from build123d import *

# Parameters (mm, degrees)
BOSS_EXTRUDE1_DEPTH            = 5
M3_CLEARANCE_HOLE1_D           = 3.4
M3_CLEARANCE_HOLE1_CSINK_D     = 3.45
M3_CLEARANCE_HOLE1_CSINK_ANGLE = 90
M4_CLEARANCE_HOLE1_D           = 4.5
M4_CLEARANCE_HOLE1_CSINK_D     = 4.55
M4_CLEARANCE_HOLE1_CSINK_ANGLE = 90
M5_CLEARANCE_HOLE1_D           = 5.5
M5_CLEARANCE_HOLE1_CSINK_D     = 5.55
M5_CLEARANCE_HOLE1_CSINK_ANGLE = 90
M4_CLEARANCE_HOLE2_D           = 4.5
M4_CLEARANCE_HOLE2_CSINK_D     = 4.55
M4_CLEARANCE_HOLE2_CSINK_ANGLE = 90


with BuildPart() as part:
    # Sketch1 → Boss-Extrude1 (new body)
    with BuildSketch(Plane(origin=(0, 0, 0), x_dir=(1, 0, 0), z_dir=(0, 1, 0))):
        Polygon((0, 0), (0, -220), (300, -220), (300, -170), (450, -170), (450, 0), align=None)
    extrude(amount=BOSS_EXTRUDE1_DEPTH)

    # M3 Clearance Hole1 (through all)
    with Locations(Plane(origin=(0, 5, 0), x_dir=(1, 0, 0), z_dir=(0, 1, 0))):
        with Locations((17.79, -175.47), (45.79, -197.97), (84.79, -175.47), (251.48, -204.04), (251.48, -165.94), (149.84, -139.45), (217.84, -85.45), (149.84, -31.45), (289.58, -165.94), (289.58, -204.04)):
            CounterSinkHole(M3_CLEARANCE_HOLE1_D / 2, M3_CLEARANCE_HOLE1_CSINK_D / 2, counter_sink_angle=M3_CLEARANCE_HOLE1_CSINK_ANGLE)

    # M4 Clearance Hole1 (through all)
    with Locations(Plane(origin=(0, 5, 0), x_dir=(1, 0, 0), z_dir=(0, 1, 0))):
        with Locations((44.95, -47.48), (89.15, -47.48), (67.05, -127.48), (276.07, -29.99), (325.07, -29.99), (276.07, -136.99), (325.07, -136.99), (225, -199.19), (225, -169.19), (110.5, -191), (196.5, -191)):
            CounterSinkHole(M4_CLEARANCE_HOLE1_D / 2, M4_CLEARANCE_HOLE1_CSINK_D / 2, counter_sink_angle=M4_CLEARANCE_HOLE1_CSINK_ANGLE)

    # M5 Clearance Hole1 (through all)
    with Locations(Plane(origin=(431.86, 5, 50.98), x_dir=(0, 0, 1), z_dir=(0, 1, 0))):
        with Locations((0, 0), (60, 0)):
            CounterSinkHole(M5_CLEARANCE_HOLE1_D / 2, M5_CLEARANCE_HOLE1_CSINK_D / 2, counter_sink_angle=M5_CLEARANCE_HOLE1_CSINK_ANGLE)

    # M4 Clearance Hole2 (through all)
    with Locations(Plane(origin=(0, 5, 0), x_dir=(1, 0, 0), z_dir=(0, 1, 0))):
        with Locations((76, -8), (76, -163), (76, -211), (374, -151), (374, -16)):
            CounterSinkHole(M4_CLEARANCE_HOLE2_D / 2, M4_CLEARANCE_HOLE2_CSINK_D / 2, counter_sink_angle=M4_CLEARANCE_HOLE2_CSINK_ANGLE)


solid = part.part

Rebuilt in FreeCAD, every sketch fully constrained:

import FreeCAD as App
import Part
import Sketcher
from FreeCAD import Vector
Q = App.Units.Quantity


def add_polygon(sketch, points):
    """Adds a closed chain of lines whose ends are joined by coincident constraints."""
    first, n = sketch.GeometryCount, len(points)
    for a, b in zip(points, points[1:] + points[:1]):
        sketch.addGeometry(Part.LineSegment(App.Vector(*a, 0), App.Vector(*b, 0)), False)
    for i in range(n):
        sketch.addConstraint(Sketcher.Constraint("Coincident", first + i, 2, first + (i + 1) % n, 1))

doc = App.newDocument("Part")
body = doc.addObject("PartDesign::Body", "Body")

# Sketch on XZ plane
sketch1 = body.newObject("Sketcher::SketchObject", "Sketch")
sketch1.AttachmentSupport = (doc.getObject("XZ_Plane"), [""])
sketch1.MapMode = "FlatFace"
add_polygon(sketch1, [(0, 0), (0, 220), (300, 220), (300, 170), (450, 170), (450, 0)])  # lines 0-5
sketch1.addConstraint([
    Sketcher.Constraint("Vertical", 0),
    Sketcher.Constraint("Horizontal", 1),
    Sketcher.Constraint("Vertical", 2),
    Sketcher.Constraint("Horizontal", 3),
    Sketcher.Constraint("Vertical", 4),
    Sketcher.Constraint("Horizontal", 5),
    Sketcher.Constraint("Coincident", 5, 2, -1, 1),
    Sketcher.Constraint("DistanceX", 1, 1, 1, 2, Q("300 mm")),
    Sketcher.Constraint("DistanceX", 3, 1, 3, 2, Q("150 mm")),
    Sketcher.Constraint("DistanceY", 0, 1, 0, 2, Q("220 mm")),
    Sketcher.Constraint("DistanceY", 2, 2, 2, 1, Q("50 mm")),
])
pad1 = body.newObject("PartDesign::Pad", "Pad")
pad1.Profile = sketch1
pad1.Length = 5
pad1.Reversed = True

# Sketch on XZ plane
sketch2 = body.newObject("Sketcher::SketchObject", "Sketch001")
sketch2.AttachmentSupport = (doc.getObject("XZ_Plane"), [""])
sketch2.MapMode = "FlatFace"
sketch2.AttachmentOffset = App.Placement(Vector(0, 0, -5), App.Rotation())
sketch2.addGeometry([
    Part.Circle(Vector(17.8, 175.5, 0), Vector(0, 0, 1), 1.7),  # 0
    Part.Circle(Vector(45.8, 198, 0), Vector(0, 0, 1), 1.7),  # 1
    Part.Circle(Vector(84.8, 175.5, 0), Vector(0, 0, 1), 1.7),  # 2
    Part.Circle(Vector(251.5, 204, 0), Vector(0, 0, 1), 1.7),  # 3
    Part.Circle(Vector(251.5, 165.9, 0), Vector(0, 0, 1), 1.7),  # 4
    Part.Circle(Vector(149.8, 139.4, 0), Vector(0, 0, 1), 1.7),  # 5
    Part.Circle(Vector(217.8, 85.5, 0), Vector(0, 0, 1), 1.7),  # 6
    Part.Circle(Vector(149.8, 31.4, 0), Vector(0, 0, 1), 1.7),  # 7
    Part.Circle(Vector(289.6, 165.9, 0), Vector(0, 0, 1), 1.7),  # 8
    Part.Circle(Vector(289.6, 204, 0), Vector(0, 0, 1), 1.7),  # 9
], False)
sketch2.addConstraint([
    Sketcher.Constraint("Equal", 0, 1),
    Sketcher.Constraint("Equal", 1, 2),
    Sketcher.Constraint("Equal", 2, 3),
    Sketcher.Constraint("Equal", 3, 4),
    Sketcher.Constraint("Equal", 4, 5),
    Sketcher.Constraint("Equal", 5, 6),
    Sketcher.Constraint("Equal", 6, 7),
    Sketcher.Constraint("Equal", 7, 8),
    Sketcher.Constraint("Equal", 8, 9),
    Sketcher.Constraint("Horizontal", 0, 3, 2, 3),
    Sketcher.Constraint("Horizontal", 4, 3, 8, 3),
    Sketcher.Constraint("Horizontal", 3, 3, 9, 3),
    Sketcher.Constraint("Vertical", 3, 3, 4, 3),
    Sketcher.Constraint("Vertical", 5, 3, 7, 3),
    Sketcher.Constraint("Vertical", 8, 3, 9, 3),
    Sketcher.Constraint("Diameter", 0, Q("3.4 mm")),
    Sketcher.Constraint("DistanceX", 0, 3, 1, 3, Q("28 mm")),
    Sketcher.Constraint("DistanceX", 1, 3, 2, 3, Q("39 mm")),
    Sketcher.Constraint("DistanceX", 5, 3, 6, 3, Q("68 mm")),
    Sketcher.Constraint("DistanceY", 6, 3, 5, 3, Q("54 mm")),
    Sketcher.Constraint("DistanceY", 7, 3, 6, 3, Q("54 mm")),
    Sketcher.Constraint("DistanceY", 0, 3, 1, 3, Q("22.5 mm")),
    Sketcher.Constraint("DistanceY", 4, 3, 3, 3, Q("38.1 mm")),
    Sketcher.Constraint("DistanceX", 4, 3, 8, 3, Q("38.1 mm")),
    Sketcher.Constraint("DistanceX", -1, 1, 0, 3, Q("17.79 mm")),
    Sketcher.Constraint("DistanceY", -1, 1, 0, 3, Q("175.47 mm")),
    Sketcher.Constraint("DistanceX", -1, 1, 3, 3, Q("251.48 mm")),
    Sketcher.Constraint("DistanceY", -1, 1, 3, 3, Q("204.04 mm")),
    Sketcher.Constraint("DistanceX", -1, 1, 5, 3, Q("149.84 mm")),
    Sketcher.Constraint("DistanceY", -1, 1, 5, 3, Q("139.45 mm")),
])
doc.recompute()
hole = body.newObject("PartDesign::Hole", "Hole")
hole.Profile = sketch2
hole.ThreadType = "None"
hole.Diameter = 3.4
hole.DepthType = "ThroughAll"
hole.HoleCutType = "Countersink"
hole.HoleCutDiameter = 3.45
hole.HoleCutCountersinkAngle = 90
hole.Reversed = True

# Sketch on XZ plane
sketch3 = body.newObject("Sketcher::SketchObject", "Sketch002")
sketch3.AttachmentSupport = (doc.getObject("XZ_Plane"), [""])
sketch3.MapMode = "FlatFace"
sketch3.AttachmentOffset = App.Placement(Vector(0, 0, -5), App.Rotation())
sketch3.addGeometry([
    Part.Circle(Vector(45, 47.5, 0), Vector(0, 0, 1), 2.2),  # 0
    Part.Circle(Vector(89.2, 47.5, 0), Vector(0, 0, 1), 2.2),  # 1
    Part.Circle(Vector(67, 127.5, 0), Vector(0, 0, 1), 2.2),  # 2
    Part.Circle(Vector(276.1, 30, 0), Vector(0, 0, 1), 2.2),  # 3
    Part.Circle(Vector(325.1, 30, 0), Vector(0, 0, 1), 2.2),  # 4
    Part.Circle(Vector(276.1, 137, 0), Vector(0, 0, 1), 2.2),  # 5
    Part.Circle(Vector(325.1, 137, 0), Vector(0, 0, 1), 2.2),  # 6
    Part.Circle(Vector(225, 199.2, 0), Vector(0, 0, 1), 2.2),  # 7
    Part.Circle(Vector(225, 169.2, 0), Vector(0, 0, 1), 2.2),  # 8
    Part.Circle(Vector(110.5, 191, 0), Vector(0, 0, 1), 2.2),  # 9
    Part.Circle(Vector(196.5, 191, 0), Vector(0, 0, 1), 2.2),  # 10
], False)
sketch3.addConstraint([
    Sketcher.Constraint("Equal", 0, 1),
    Sketcher.Constraint("Equal", 1, 2),
    Sketcher.Constraint("Equal", 2, 3),
    Sketcher.Constraint("Equal", 3, 4),
    Sketcher.Constraint("Equal", 4, 5),
    Sketcher.Constraint("Equal", 5, 6),
    Sketcher.Constraint("Equal", 6, 7),
    Sketcher.Constraint("Equal", 7, 8),
    Sketcher.Constraint("Equal", 8, 9),
    Sketcher.Constraint("Equal", 9, 10),
    Sketcher.Constraint("Horizontal", 0, 3, 1, 3),
    Sketcher.Constraint("Horizontal", 3, 3, 4, 3),
    Sketcher.Constraint("Horizontal", 5, 3, 6, 3),
    Sketcher.Constraint("Horizontal", 9, 3, 10, 3),
    Sketcher.Constraint("Vertical", 3, 3, 5, 3),
    Sketcher.Constraint("Vertical", 4, 3, 6, 3),
    Sketcher.Constraint("Vertical", 7, 3, 8, 3),
    Sketcher.Constraint("Diameter", 0, Q("4.5 mm")),
    Sketcher.Constraint("DistanceX", -1, 1, 7, 3, Q("225 mm")),
    Sketcher.Constraint("DistanceY", -1, 1, 9, 3, Q("191 mm")),
    Sketcher.Constraint("DistanceY", 0, 3, 2, 3, Q("80 mm")),
    Sketcher.Constraint("DistanceX", 3, 3, 4, 3, Q("49 mm")),
    Sketcher.Constraint("DistanceY", 3, 3, 5, 3, Q("107 mm")),
    Sketcher.Constraint("DistanceY", 8, 3, 7, 3, Q("30 mm")),
    Sketcher.Constraint("DistanceX", 9, 3, 10, 3, Q("86 mm")),
    Sketcher.Constraint("DistanceX", -1, 1, 9, 3, Q("110.5 mm")),
    Sketcher.Constraint("DistanceX", 0, 3, 1, 3, Q("44.2 mm")),
    Sketcher.Constraint("DistanceX", 0, 3, 2, 3, Q("22.1 mm")),
    Sketcher.Constraint("DistanceY", 5, 3, 7, 3, Q("62.2 mm")),
    Sketcher.Constraint("DistanceX", -1, 1, 0, 3, Q("44.95 mm")),
    Sketcher.Constraint("DistanceY", -1, 1, 0, 3, Q("47.48 mm")),
    Sketcher.Constraint("DistanceX", -1, 1, 3, 3, Q("276.07 mm")),
    Sketcher.Constraint("DistanceY", -1, 1, 3, 3, Q("29.99 mm")),
])
doc.recompute()
hole2 = body.newObject("PartDesign::Hole", "Hole001")
hole2.Profile = sketch3
hole2.ThreadType = "None"
hole2.Diameter = 4.5
hole2.DepthType = "ThroughAll"
hole2.HoleCutType = "Countersink"
hole2.HoleCutDiameter = 4.55
hole2.HoleCutCountersinkAngle = 90
hole2.Reversed = True

# Sketch on XZ plane
sketch4 = body.newObject("Sketcher::SketchObject", "Sketch003")
sketch4.AttachmentSupport = (doc.getObject("XZ_Plane"), [""])
sketch4.MapMode = "FlatFace"
sketch4.AttachmentOffset = App.Placement(Vector(0, 0, -5), App.Rotation())
sketch4.addGeometry([
    Part.Circle(Vector(431.9, 51, 0), Vector(0, 0, 1), 2.8),
    Part.Circle(Vector(431.9, 111, 0), Vector(0, 0, 1), 2.8),
], False)
sketch4.addConstraint([
    Sketcher.Constraint("Equal", 0, 1),
    Sketcher.Constraint("Vertical", 0, 3, 1, 3),
    Sketcher.Constraint("Diameter", 0, Q("5.5 mm")),
    Sketcher.Constraint("DistanceY", 0, 3, 1, 3, Q("60 mm")),
    Sketcher.Constraint("DistanceX", -1, 1, 0, 3, Q("431.86 mm")),
    Sketcher.Constraint("DistanceY", -1, 1, 0, 3, Q("50.98 mm")),
])
doc.recompute()
hole3 = body.newObject("PartDesign::Hole", "Hole002")
hole3.Profile = sketch4
hole3.ThreadType = "None"
hole3.Diameter = 5.5
hole3.DepthType = "ThroughAll"
hole3.HoleCutType = "Countersink"
hole3.HoleCutDiameter = 5.55
hole3.HoleCutCountersinkAngle = 90
hole3.Reversed = True

# Sketch on XZ plane
sketch5 = body.newObject("Sketcher::SketchObject", "Sketch004")
sketch5.AttachmentSupport = (doc.getObject("XZ_Plane"), [""])
sketch5.MapMode = "FlatFace"
sketch5.AttachmentOffset = App.Placement(Vector(0, 0, -5), App.Rotation())
sketch5.addGeometry([
    Part.Circle(Vector(76, 8, 0), Vector(0, 0, 1), 2.2),  # 0
    Part.Circle(Vector(76, 163, 0), Vector(0, 0, 1), 2.2),  # 1
    Part.Circle(Vector(76, 211, 0), Vector(0, 0, 1), 2.2),  # 2
    Part.Circle(Vector(374, 151, 0), Vector(0, 0, 1), 2.2),  # 3
    Part.Circle(Vector(374, 16, 0), Vector(0, 0, 1), 2.2),  # 4
], False)
sketch5.addConstraint([
    Sketcher.Constraint("Equal", 0, 1),
    Sketcher.Constraint("Equal", 1, 2),
    Sketcher.Constraint("Equal", 2, 3),
    Sketcher.Constraint("Equal", 3, 4),
    Sketcher.Constraint("Vertical", 0, 3, 1, 3),
    Sketcher.Constraint("Vertical", 1, 3, 2, 3),
    Sketcher.Constraint("Vertical", 3, 3, 4, 3),
    Sketcher.Constraint("Diameter", 0, Q("4.5 mm")),
    Sketcher.Constraint("DistanceX", -1, 1, 0, 3, Q("76 mm")),
    Sketcher.Constraint("DistanceY", -1, 1, 0, 3, Q("8 mm")),
    Sketcher.Constraint("DistanceY", -1, 1, 1, 3, Q("163 mm")),
    Sketcher.Constraint("DistanceY", -1, 1, 2, 3, Q("211 mm")),
    Sketcher.Constraint("DistanceX", -1, 1, 3, 3, Q("374 mm")),
    Sketcher.Constraint("DistanceY", -1, 1, 3, 3, Q("151 mm")),
    Sketcher.Constraint("DistanceY", -1, 1, 4, 3, Q("16 mm")),
])
doc.recompute()
hole4 = body.newObject("PartDesign::Hole", "Hole003")
hole4.Profile = sketch5
hole4.ThreadType = "None"
hole4.Diameter = 4.5
hole4.DepthType = "ThroughAll"
hole4.HoleCutType = "Countersink"
hole4.HoleCutDiameter = 4.55
hole4.HoleCutCountersinkAngle = 90
hole4.Reversed = True

doc.recompute()
